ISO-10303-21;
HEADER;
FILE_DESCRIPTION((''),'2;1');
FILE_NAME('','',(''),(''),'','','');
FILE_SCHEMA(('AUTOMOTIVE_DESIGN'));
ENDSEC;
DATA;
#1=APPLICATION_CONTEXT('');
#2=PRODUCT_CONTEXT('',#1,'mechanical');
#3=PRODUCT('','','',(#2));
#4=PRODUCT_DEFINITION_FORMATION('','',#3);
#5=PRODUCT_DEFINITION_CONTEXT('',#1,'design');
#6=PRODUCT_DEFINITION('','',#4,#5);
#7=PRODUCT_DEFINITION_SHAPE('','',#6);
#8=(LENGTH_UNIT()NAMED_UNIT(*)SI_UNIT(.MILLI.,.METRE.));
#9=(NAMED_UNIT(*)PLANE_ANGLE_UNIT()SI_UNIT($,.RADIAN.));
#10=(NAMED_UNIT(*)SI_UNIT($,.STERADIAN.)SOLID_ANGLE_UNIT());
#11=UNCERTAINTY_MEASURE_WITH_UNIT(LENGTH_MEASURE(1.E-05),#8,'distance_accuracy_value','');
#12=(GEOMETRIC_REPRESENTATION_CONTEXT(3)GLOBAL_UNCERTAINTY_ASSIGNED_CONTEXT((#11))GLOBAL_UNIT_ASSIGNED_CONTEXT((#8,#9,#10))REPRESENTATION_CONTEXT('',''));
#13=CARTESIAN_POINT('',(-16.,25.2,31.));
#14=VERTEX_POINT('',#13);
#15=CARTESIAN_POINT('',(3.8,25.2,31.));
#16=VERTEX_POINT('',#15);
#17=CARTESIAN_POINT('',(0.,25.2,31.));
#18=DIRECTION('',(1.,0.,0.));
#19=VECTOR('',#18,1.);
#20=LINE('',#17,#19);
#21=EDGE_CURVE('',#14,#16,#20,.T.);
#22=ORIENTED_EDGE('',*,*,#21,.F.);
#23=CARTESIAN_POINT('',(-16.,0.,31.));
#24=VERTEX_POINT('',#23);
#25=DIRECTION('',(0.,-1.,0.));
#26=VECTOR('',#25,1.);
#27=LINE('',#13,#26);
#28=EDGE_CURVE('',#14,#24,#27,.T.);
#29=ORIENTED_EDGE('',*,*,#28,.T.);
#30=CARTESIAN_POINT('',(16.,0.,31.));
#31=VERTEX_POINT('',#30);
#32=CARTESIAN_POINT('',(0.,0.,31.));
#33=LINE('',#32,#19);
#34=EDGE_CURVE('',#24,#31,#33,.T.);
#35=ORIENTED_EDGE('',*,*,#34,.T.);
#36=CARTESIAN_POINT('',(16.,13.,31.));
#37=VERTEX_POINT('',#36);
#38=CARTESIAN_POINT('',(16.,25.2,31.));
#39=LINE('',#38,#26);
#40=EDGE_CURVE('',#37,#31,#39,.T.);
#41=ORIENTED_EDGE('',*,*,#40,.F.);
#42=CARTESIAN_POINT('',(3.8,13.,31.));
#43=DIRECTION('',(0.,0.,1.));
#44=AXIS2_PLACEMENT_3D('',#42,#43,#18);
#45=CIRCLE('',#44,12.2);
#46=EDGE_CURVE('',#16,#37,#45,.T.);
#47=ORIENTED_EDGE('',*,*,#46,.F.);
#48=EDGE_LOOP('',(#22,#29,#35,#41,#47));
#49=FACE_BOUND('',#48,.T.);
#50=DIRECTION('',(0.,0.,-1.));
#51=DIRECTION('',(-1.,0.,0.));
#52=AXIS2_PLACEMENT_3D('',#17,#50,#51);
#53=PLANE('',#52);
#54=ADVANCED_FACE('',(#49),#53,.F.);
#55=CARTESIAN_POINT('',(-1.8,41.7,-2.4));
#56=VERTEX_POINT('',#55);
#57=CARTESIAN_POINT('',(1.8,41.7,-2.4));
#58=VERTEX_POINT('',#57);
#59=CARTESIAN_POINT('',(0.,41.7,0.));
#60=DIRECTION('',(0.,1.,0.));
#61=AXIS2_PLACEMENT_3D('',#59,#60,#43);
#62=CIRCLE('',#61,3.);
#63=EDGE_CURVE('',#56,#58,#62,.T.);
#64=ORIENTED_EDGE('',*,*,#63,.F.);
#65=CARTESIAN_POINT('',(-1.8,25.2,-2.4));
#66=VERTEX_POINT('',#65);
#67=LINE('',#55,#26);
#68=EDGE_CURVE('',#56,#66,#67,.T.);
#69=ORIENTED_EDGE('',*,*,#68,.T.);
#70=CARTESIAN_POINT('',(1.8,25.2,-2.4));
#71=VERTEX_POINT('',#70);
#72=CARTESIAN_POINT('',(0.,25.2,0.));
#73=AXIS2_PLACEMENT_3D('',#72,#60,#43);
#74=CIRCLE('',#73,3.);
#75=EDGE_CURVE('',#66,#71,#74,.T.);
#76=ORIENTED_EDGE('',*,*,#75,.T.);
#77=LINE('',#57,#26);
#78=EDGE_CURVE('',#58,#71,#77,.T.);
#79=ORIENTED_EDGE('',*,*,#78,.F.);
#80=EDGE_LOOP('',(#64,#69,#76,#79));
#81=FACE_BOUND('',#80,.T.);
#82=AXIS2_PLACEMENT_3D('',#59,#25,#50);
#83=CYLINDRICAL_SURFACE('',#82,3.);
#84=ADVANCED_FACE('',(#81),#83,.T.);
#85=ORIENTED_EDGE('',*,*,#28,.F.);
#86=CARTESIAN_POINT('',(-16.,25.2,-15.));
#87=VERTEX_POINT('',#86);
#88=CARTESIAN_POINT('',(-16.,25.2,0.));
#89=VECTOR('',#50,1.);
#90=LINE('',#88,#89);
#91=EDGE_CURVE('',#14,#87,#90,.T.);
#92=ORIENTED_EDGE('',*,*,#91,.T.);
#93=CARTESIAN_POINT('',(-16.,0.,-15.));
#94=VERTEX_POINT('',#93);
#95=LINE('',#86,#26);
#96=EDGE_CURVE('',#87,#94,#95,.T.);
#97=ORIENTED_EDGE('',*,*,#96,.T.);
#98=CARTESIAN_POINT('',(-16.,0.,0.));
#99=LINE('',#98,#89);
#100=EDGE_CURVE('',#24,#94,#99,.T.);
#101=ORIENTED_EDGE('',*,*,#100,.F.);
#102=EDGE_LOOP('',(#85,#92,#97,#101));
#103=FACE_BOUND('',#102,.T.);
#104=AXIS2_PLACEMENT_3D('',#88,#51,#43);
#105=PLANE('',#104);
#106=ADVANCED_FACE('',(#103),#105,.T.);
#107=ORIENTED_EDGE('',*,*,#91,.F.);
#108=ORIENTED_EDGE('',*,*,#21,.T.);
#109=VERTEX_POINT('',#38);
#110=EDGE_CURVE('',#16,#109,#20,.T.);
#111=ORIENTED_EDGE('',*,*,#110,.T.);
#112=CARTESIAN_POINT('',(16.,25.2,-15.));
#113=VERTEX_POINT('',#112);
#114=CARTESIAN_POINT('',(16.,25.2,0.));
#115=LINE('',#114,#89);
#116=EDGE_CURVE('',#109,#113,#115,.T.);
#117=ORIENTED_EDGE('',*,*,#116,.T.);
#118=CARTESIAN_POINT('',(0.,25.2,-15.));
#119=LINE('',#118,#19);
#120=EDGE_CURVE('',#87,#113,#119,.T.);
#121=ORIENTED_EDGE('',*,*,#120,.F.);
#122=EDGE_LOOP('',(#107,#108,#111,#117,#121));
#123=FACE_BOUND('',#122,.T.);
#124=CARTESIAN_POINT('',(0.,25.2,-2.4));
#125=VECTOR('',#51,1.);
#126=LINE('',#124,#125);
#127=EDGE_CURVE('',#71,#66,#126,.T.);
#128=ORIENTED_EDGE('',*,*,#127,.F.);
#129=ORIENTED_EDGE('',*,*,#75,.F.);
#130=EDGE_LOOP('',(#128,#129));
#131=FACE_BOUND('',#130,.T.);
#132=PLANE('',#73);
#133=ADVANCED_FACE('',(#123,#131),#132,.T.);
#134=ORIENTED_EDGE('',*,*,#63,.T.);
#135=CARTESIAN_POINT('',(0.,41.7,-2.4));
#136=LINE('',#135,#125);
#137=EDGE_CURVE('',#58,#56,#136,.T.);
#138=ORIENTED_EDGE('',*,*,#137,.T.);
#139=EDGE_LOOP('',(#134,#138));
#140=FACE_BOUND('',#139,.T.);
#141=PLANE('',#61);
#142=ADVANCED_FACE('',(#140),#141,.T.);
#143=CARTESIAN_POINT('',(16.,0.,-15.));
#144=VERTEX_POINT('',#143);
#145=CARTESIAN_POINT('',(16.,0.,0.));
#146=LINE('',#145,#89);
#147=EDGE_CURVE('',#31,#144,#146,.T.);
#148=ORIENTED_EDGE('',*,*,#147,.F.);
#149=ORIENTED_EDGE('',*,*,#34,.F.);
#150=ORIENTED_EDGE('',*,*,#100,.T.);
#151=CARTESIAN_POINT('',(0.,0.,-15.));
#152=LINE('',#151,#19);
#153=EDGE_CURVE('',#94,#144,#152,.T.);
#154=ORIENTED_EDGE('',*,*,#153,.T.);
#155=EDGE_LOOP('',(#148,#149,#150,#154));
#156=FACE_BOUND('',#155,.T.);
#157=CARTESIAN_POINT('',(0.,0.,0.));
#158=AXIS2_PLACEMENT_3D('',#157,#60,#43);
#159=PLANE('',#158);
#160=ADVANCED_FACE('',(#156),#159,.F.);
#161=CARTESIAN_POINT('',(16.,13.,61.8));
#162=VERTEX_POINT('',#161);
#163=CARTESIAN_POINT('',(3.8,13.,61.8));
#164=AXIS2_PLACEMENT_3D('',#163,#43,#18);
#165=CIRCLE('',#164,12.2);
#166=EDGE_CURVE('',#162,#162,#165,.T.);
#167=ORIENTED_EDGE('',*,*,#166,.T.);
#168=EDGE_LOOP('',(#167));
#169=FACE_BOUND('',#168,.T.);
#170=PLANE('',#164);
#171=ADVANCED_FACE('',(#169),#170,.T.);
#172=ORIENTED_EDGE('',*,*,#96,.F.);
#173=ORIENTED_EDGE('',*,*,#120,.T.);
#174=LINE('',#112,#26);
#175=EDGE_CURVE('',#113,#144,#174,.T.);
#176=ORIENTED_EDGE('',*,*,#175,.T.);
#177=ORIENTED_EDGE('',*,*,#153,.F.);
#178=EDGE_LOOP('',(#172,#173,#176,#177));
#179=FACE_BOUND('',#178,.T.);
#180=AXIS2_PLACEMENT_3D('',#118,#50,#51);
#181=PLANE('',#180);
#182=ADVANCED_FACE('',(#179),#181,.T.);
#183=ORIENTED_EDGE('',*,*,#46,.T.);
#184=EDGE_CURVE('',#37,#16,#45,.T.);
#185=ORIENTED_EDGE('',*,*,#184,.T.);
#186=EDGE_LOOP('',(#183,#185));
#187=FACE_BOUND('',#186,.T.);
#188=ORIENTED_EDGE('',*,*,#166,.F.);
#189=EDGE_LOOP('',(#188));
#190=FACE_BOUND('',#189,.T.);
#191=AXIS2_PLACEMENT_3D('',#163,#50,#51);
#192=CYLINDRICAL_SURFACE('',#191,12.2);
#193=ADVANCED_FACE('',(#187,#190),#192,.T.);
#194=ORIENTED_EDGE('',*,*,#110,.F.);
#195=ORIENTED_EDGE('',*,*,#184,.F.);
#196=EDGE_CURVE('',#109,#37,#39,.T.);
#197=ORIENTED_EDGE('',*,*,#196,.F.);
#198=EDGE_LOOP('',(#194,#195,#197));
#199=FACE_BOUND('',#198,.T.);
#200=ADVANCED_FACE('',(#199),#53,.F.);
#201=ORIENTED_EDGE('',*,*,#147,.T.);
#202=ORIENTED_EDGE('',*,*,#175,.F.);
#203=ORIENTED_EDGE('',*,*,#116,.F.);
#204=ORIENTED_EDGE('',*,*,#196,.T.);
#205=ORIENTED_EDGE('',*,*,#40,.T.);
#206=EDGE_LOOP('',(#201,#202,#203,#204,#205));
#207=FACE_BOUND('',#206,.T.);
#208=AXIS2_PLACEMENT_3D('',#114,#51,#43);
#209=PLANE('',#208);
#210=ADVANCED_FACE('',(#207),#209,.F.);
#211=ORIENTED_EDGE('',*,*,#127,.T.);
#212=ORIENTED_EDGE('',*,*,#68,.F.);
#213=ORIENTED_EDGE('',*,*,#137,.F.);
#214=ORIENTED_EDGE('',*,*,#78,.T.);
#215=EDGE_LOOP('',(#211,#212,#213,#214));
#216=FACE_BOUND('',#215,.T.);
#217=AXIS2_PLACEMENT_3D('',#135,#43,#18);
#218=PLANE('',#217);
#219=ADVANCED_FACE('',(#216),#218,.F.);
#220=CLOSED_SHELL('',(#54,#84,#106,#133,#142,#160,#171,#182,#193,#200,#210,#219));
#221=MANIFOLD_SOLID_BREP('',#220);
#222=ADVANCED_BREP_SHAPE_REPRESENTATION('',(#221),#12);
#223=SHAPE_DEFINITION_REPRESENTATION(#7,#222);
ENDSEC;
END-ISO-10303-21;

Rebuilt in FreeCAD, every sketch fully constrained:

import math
import FreeCAD as App
import Part
import Sketcher
Q = App.Units.Quantity


def add_polygon(sketch, points):
    """Adds a closed chain of lines whose ends are joined by coincident constraints."""
    first, n = sketch.GeometryCount, len(points)
    for a, b in zip(points, points[1:] + points[:1]):
        sketch.addGeometry(Part.LineSegment(App.Vector(*a, 0), App.Vector(*b, 0)), False)
    for i in range(n):
        sketch.addConstraint(Sketcher.Constraint("Coincident", first + i, 2, first + (i + 1) % n, 1))

doc = App.newDocument("Part")
body = doc.addObject("PartDesign::Body", "Body")

sketch1 = doc.addObject("Sketcher::SketchObject", "Sketch")
body.addObject(sketch1)
sketch1.AttachmentSupport = (doc.XZ_Plane, [""])
sketch1.MapMode = "FlatFace"
add_polygon(sketch1, [(-16, -15), (-16, 31), (16, 31), (16, -15)])
sketch1.addConstraint(Sketcher.Constraint("Vertical", 0))
sketch1.addConstraint(Sketcher.Constraint("Horizontal", 1))
sketch1.addConstraint(Sketcher.Constraint("Vertical", 2))
sketch1.addConstraint(Sketcher.Constraint("Horizontal", 3))
sketch1.addConstraint(Sketcher.Constraint("DistanceX", 1, 1, 1, 2, Q("32 mm")))
sketch1.addConstraint(Sketcher.Constraint("DistanceY", 0, 1, 0, 2, Q("46 mm")))
sketch1.addConstraint(Sketcher.Constraint("DistanceX", 0, 2, -1, 1, Q("16 mm")))
sketch1.addConstraint(Sketcher.Constraint("DistanceY", -1, 1, 0, 2, Q("31 mm")))
pad1 = doc.addObject("PartDesign::Pad", "Pad")
body.addObject(pad1)
pad1.Profile = sketch1
pad1.Length = 25.2
pad1.Reversed = True

sketch2 = doc.addObject("Sketcher::SketchObject", "Sketch001")
body.addObject(sketch2)
sketch2.AttachmentSupport = (doc.XZ_Plane, [""])
sketch2.MapMode = "FlatFace"
sketch2.AttachmentOffset = App.Placement(App.Vector(0, 0, -25.2), App.Rotation())
sketch2.addGeometry(Part.LineSegment(App.Vector(1.8, -2.4, 0), App.Vector(-1.8, -2.4, 0)), False)
sketch2.addGeometry(Part.ArcOfCircle(Part.Circle(App.Vector(0, 0, 0), App.Vector(0, 0, 1), 3), math.radians(-53), math.radians(233)), False)
sketch2.addConstraint(Sketcher.Constraint("Coincident", 0, 1, 1, 1))
sketch2.addConstraint(Sketcher.Constraint("Coincident", 1, 2, 0, 2))
sketch2.addConstraint(Sketcher.Constraint("Horizontal", 0))
sketch2.addConstraint(Sketcher.Constraint("Coincident", 1, 3, -1, 1))
sketch2.addConstraint(Sketcher.Constraint("Radius", 1, Q("3 mm")))
sketch2.addConstraint(Sketcher.Constraint("DistanceX", 0, 2, 0, 1, Q("3.6 mm")))
pad2 = doc.addObject("PartDesign::Pad", "Pad001")
body.addObject(pad2)
pad2.Profile = sketch2
pad2.Length = 16.5
pad2.Reversed = True

sketch3 = doc.addObject("Sketcher::SketchObject", "Sketch002")
body.addObject(sketch3)
sketch3.AttachmentSupport = (doc.XY_Plane, [""])
sketch3.MapMode = "FlatFace"
sketch3.AttachmentOffset = App.Placement(App.Vector(0, 0, 31), App.Rotation())
sketch3.addGeometry(Part.Circle(App.Vector(4, 13, 0), App.Vector(0, 0, 1), 12), False)
sketch3.addConstraint(Sketcher.Constraint("Diameter", 0, Q("24.4 mm")))
sketch3.addConstraint(Sketcher.Constraint("DistanceY", -1, 1, 0, 3, Q("13 mm")))
sketch3.addConstraint(Sketcher.Constraint("DistanceX", -1, 1, 0, 3, Q("3.8 mm")))
pad3 = doc.addObject("PartDesign::Pad", "Pad002")
body.addObject(pad3)
pad3.Profile = sketch3
pad3.Length = 30.8

doc.recompute()
